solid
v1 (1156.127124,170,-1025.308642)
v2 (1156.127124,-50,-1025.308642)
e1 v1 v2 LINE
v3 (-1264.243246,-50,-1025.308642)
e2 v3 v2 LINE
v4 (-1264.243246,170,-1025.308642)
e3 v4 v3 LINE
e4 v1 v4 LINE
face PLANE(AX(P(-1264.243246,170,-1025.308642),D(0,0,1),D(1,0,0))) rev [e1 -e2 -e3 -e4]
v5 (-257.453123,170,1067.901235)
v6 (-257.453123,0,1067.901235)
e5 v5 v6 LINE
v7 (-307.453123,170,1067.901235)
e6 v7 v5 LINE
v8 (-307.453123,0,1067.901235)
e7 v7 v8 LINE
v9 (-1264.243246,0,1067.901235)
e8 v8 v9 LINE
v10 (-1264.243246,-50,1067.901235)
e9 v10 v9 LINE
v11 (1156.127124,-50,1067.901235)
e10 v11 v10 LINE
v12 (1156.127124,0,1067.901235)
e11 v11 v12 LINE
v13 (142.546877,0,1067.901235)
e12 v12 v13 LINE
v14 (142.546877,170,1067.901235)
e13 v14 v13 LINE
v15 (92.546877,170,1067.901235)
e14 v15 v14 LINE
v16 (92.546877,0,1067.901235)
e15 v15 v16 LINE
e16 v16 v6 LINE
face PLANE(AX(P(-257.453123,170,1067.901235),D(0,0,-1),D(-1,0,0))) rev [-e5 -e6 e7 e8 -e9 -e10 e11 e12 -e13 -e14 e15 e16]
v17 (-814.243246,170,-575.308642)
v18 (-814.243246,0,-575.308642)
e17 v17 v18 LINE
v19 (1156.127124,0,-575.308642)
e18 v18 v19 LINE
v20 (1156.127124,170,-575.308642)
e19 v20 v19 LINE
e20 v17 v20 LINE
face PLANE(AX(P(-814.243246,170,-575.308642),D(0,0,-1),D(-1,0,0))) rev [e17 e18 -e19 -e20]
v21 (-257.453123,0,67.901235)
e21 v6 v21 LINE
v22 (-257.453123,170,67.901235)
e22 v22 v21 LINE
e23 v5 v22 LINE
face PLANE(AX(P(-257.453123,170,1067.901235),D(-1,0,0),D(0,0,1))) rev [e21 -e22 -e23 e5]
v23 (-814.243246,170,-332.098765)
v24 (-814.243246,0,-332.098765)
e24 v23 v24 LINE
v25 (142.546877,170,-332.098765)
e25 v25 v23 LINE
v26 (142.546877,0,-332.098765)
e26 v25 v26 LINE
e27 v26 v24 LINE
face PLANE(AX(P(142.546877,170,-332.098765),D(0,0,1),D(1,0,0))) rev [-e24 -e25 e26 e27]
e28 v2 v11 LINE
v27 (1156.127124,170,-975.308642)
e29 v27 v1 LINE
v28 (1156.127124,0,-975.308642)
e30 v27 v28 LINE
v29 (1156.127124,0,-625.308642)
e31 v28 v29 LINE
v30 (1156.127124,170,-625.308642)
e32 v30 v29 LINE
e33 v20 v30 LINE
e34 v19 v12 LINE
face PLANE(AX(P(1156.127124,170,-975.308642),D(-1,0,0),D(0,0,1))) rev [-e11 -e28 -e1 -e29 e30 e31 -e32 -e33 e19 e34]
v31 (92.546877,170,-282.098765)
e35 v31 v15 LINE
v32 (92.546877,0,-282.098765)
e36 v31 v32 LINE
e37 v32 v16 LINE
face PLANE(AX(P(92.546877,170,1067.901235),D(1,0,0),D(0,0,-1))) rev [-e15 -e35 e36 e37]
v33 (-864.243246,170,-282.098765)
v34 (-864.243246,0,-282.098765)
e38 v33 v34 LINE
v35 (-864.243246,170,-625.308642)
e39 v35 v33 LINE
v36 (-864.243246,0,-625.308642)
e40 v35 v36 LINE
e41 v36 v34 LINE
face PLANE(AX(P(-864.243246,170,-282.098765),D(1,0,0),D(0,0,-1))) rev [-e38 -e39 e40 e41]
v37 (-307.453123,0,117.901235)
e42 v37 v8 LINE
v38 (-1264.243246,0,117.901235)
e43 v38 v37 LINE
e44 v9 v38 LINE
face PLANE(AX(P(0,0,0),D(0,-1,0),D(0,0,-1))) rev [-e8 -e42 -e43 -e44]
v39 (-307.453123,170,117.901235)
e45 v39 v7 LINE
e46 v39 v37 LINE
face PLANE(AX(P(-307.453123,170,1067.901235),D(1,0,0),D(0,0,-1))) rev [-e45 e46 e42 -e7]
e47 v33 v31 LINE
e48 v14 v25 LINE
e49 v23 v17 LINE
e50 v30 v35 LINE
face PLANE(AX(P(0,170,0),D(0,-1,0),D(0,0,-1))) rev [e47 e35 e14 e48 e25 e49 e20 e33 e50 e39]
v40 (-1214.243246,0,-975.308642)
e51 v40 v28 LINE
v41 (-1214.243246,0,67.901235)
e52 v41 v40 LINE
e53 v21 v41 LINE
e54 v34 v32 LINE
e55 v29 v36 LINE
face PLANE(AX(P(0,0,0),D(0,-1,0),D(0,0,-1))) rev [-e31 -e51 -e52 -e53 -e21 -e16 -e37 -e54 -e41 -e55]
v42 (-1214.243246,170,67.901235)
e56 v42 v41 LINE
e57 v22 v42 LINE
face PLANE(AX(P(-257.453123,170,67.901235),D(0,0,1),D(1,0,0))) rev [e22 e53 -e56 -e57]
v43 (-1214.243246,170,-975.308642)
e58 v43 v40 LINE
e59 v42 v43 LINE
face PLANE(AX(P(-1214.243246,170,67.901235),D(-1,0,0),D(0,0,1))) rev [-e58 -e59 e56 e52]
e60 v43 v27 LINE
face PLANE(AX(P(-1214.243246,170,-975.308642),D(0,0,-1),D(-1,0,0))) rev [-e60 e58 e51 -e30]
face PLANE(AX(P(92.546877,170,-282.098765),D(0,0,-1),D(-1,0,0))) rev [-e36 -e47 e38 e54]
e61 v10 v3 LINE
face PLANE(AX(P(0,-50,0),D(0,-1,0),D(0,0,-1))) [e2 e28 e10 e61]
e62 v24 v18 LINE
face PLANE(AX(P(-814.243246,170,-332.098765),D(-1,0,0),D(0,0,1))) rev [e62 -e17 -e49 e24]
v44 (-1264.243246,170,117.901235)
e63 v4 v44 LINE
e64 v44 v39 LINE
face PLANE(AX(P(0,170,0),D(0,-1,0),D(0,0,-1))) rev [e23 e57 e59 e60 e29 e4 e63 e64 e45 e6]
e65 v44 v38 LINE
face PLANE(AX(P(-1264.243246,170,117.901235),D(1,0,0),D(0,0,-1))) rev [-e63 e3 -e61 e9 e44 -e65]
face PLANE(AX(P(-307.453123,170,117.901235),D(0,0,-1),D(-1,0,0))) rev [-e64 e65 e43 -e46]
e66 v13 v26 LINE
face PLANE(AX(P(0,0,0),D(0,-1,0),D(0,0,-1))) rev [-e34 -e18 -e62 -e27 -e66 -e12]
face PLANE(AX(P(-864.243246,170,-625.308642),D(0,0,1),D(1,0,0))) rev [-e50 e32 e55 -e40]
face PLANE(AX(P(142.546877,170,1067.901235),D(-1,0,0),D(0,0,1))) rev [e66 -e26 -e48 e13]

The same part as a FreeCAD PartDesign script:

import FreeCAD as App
import Part
import Sketcher

V = App.Vector
Q = App.Units.Quantity

doc = App.newDocument("Part")
body = doc.addObject("PartDesign::Body", "Body")

# Sketch on XZ plane
sketch1 = doc.addObject("Sketcher::SketchObject", "Sketch")
body.addObject(sketch1)
sketch1.AttachmentSupport = (doc.XZ_Plane, [""])
sketch1.MapMode = "FlatFace"
sketch1.addGeometry([
    Part.LineSegment(V(-257.453123, 1067.901235, 0), V(-257.453123, 67.901235, 0)),  # 0
    Part.LineSegment(V(-257.453123, 67.901235, 0), V(-1214.243246, 67.901235, 0)),  # 1
    Part.LineSegment(V(-1214.243246, 67.901235, 0), V(-1214.243246, -975.308642, 0)),  # 2
    Part.LineSegment(V(-1214.243246, -975.308642, 0), V(1156.127124, -975.308642, 0)),  # 3
    Part.LineSegment(V(1156.127124, -975.308642, 0), V(1156.127124, -1025.308642, 0)),  # 4
    Part.LineSegment(V(1156.127124, -1025.308642, 0), V(-1264.243246, -1025.308642, 0)),  # 5
    Part.LineSegment(V(-1264.243246, -1025.308642, 0), V(-1264.243246, 117.901235, 0)),  # 6
    Part.LineSegment(V(-1264.243246, 117.901235, 0), V(-307.453123, 117.901235, 0)),  # 7
    Part.LineSegment(V(-307.453123, 117.901235, 0), V(-307.453123, 1067.901235, 0)),  # 8
    Part.LineSegment(V(-307.453123, 1067.901235, 0), V(-257.453123, 1067.901235, 0)),  # 9
], False)
sketch1.addConstraint([
    Sketcher.Constraint("Coincident", 0, 2, 1, 1),
    Sketcher.Constraint("Coincident", 1, 2, 2, 1),
    Sketcher.Constraint("Coincident", 2, 2, 3, 1),
    Sketcher.Constraint("Coincident", 3, 2, 4, 1),
    Sketcher.Constraint("Coincident", 4, 2, 5, 1),
    Sketcher.Constraint("Coincident", 5, 2, 6, 1),
    Sketcher.Constraint("Coincident", 6, 2, 7, 1),
    Sketcher.Constraint("Coincident", 7, 2, 8, 1),
    Sketcher.Constraint("Coincident", 8, 2, 9, 1),
    Sketcher.Constraint("Coincident", 9, 2, 0, 1),
    Sketcher.Constraint("Vertical", 0),
    Sketcher.Constraint("Horizontal", 1),
    Sketcher.Constraint("Vertical", 2),
    Sketcher.Constraint("Horizontal", 3),
    Sketcher.Constraint("Vertical", 4),
    Sketcher.Constraint("Horizontal", 5),
    Sketcher.Constraint("Vertical", 6),
    Sketcher.Constraint("Horizontal", 7),
    Sketcher.Constraint("Vertical", 8),
    Sketcher.Constraint("Horizontal", 9),
    Sketcher.Constraint("Equal", 1, 7),
    Sketcher.Constraint("Equal", 9, 4),
    Sketcher.Constraint("DistanceX", 9, 1, 9, 2, Q("50 mm")),
    Sketcher.Constraint("DistanceY", 0, 2, 0, 1, Q("1000 mm")),
    Sketcher.Constraint("DistanceY", 8, 1, 8, 2, Q("950 mm")),
    Sketcher.Constraint("DistanceX", 3, 1, 3, 2, Q("2370.37037 mm")),
    Sketcher.Constraint("DistanceX", 1, 2, 1, 1, Q("956.790123 mm")),
    Sketcher.Constraint("DistanceY", 2, 2, 2, 1, Q("1043.209877 mm")),
    Sketcher.Constraint("DistanceY", 2, 2, -1, 1, Q("975.308642 mm")),
    Sketcher.Constraint("DistanceX", 0, 2, -1, 1, Q("257.453123 mm")),
])
pad1 = doc.addObject("PartDesign::Pad", "Pad")
body.addObject(pad1)
pad1.Profile = sketch1
pad1.Length = 170
pad1.Reversed = True
body2 = doc.addObject("PartDesign::Body", "Body001")

# Sketch on XZ plane
sketch2 = doc.addObject("Sketcher::SketchObject", "Sketch001")
body2.addObject(sketch2)
sketch2.AttachmentSupport = (doc.getObject("XZ_Plane001"), [""])
sketch2.MapMode = "FlatFace"
sketch2.addGeometry([
    Part.LineSegment(V(92.546877, -282.098765, 0), V(92.546877, 1067.901235, 0)),  # 0
    Part.LineSegment(V(92.546877, 1067.901235, 0), V(142.546877, 1067.901235, 0)),  # 1
    Part.LineSegment(V(142.546877, 1067.901235, 0), V(142.546877, -332.098765, 0)),  # 2
    Part.LineSegment(V(142.546877, -332.098765, 0), V(-814.243246, -332.098765, 0)),  # 3
    Part.LineSegment(V(-814.243246, -332.098765, 0), V(-814.243246, -575.308642, 0)),  # 4
    Part.LineSegment(V(-814.243246, -575.308642, 0), V(1156.127124, -575.308642, 0)),  # 5
    Part.LineSegment(V(1156.127124, -575.308642, 0), V(1156.127124, -625.308642, 0)),  # 6
    Part.LineSegment(V(1156.127124, -625.308642, 0), V(-864.243246, -625.308642, 0)),  # 7
    Part.LineSegment(V(-864.243246, -625.308642, 0), V(-864.243246, -282.098765, 0)),  # 8
    Part.LineSegment(V(-864.243246, -282.098765, 0), V(92.546877, -282.098765, 0)),  # 9
], False)
sketch2.addConstraint([
    Sketcher.Constraint("Coincident", 0, 2, 1, 1),
    Sketcher.Constraint("Coincident", 1, 2, 2, 1),
    Sketcher.Constraint("Coincident", 2, 2, 3, 1),
    Sketcher.Constraint("Coincident", 3, 2, 4, 1),
    Sketcher.Constraint("Coincident", 4, 2, 5, 1),
    Sketcher.Constraint("Coincident", 5, 2, 6, 1),
    Sketcher.Constraint("Coincident", 6, 2, 7, 1),
    Sketcher.Constraint("Coincident", 7, 2, 8, 1),
    Sketcher.Constraint("Coincident", 8, 2, 9, 1),
    Sketcher.Constraint("Coincident", 9, 2, 0, 1),
    Sketcher.Constraint("Vertical", 0),
    Sketcher.Constraint("Horizontal", 1),
    Sketcher.Constraint("Vertical", 2),
    Sketcher.Constraint("Horizontal", 3),
    Sketcher.Constraint("Vertical", 4),
    Sketcher.Constraint("Horizontal", 5),
    Sketcher.Constraint("Vertical", 6),
    Sketcher.Constraint("Horizontal", 7),
    Sketcher.Constraint("Vertical", 8),
    Sketcher.Constraint("Horizontal", 9),
    Sketcher.Constraint("Equal", 3, 9),
    Sketcher.Constraint("Equal", 1, 6),
    Sketcher.Constraint("DistanceX", 1, 1, 1, 2, Q("50 mm")),
    Sketcher.Constraint("DistanceY", 0, 1, 0, 2, Q("1350 mm")),
    Sketcher.Constraint("DistanceY", 2, 2, 2, 1, Q("1400 mm")),
    Sketcher.Constraint("DistanceX", 5, 1, 5, 2, Q("1970.37037 mm")),
    Sketcher.Constraint("DistanceX", 3, 2, 3, 1, Q("956.790123 mm")),
    Sketcher.Constraint("DistanceY", 4, 2, 4, 1, Q("243.209877 mm")),
    Sketcher.Constraint("DistanceY", 4, 2, -1, 1, Q("575.308642 mm")),
    Sketcher.Constraint("DistanceX", -1, 1, 0, 2, Q("92.546877 mm")),
])
pad2 = doc.addObject("PartDesign::Pad", "Pad001")
body2.addObject(pad2)
pad2.Profile = sketch2
pad2.Length = 170
pad2.Reversed = True
body.AllowCompound = True
doc.recompute()

boolean = doc.addObject("PartDesign::Boolean", "Boolean")
body.addObject(boolean)
boolean.Type = "Fuse"
boolean.addObjects([body2])

# Sketch on XZ plane
sketch3 = doc.addObject("Sketcher::SketchObject", "Sketch002")
body.addObject(sketch3)
sketch3.AttachmentSupport = (doc.XZ_Plane, [""])
sketch3.MapMode = "FlatFace"
sketch3.addGeometry([
    Part.LineSegment(V(-1264.243246, 1067.901235, 0), V(-1264.243246, -1025.308642, 0)),
    Part.LineSegment(V(-1264.243246, -1025.308642, 0), V(1156.127124, -1025.308642, 0)),
    Part.LineSegment(V(1156.127124, -1025.308642, 0), V(1156.127124, 1067.901235, 0)),
    Part.LineSegment(V(1156.127124, 1067.901235, 0), V(-1264.243246, 1067.901235, 0)),
], False)
sketch3.addConstraint([
    Sketcher.Constraint("Coincident", 0, 2, 1, 1),
    Sketcher.Constraint("Coincident", 1, 2, 2, 1),
    Sketcher.Constraint("Coincident", 2, 2, 3, 1),
    Sketcher.Constraint("Coincident", 3, 2, 0, 1),
    Sketcher.Constraint("Vertical", 0),
    Sketcher.Constraint("Horizontal", 1),
    Sketcher.Constraint("Vertical", 2),
    Sketcher.Constraint("Horizontal", 3),
    Sketcher.Constraint("DistanceX", 1, 1, 1, 2, Q("2420.37037 mm")),
    Sketcher.Constraint("DistanceY", 0, 2, 0, 1, Q("2093.209877 mm")),
    Sketcher.Constraint("DistanceY", 0, 2, -1, 1, Q("1025.308642 mm")),
    Sketcher.Constraint("DistanceX", 0, 2, -1, 1, Q("1264.243246 mm")),
])
pad3 = doc.addObject("PartDesign::Pad", "Pad002")
body.addObject(pad3)
pad3.Profile = sketch3
pad3.Length = 50

doc.recompute()
